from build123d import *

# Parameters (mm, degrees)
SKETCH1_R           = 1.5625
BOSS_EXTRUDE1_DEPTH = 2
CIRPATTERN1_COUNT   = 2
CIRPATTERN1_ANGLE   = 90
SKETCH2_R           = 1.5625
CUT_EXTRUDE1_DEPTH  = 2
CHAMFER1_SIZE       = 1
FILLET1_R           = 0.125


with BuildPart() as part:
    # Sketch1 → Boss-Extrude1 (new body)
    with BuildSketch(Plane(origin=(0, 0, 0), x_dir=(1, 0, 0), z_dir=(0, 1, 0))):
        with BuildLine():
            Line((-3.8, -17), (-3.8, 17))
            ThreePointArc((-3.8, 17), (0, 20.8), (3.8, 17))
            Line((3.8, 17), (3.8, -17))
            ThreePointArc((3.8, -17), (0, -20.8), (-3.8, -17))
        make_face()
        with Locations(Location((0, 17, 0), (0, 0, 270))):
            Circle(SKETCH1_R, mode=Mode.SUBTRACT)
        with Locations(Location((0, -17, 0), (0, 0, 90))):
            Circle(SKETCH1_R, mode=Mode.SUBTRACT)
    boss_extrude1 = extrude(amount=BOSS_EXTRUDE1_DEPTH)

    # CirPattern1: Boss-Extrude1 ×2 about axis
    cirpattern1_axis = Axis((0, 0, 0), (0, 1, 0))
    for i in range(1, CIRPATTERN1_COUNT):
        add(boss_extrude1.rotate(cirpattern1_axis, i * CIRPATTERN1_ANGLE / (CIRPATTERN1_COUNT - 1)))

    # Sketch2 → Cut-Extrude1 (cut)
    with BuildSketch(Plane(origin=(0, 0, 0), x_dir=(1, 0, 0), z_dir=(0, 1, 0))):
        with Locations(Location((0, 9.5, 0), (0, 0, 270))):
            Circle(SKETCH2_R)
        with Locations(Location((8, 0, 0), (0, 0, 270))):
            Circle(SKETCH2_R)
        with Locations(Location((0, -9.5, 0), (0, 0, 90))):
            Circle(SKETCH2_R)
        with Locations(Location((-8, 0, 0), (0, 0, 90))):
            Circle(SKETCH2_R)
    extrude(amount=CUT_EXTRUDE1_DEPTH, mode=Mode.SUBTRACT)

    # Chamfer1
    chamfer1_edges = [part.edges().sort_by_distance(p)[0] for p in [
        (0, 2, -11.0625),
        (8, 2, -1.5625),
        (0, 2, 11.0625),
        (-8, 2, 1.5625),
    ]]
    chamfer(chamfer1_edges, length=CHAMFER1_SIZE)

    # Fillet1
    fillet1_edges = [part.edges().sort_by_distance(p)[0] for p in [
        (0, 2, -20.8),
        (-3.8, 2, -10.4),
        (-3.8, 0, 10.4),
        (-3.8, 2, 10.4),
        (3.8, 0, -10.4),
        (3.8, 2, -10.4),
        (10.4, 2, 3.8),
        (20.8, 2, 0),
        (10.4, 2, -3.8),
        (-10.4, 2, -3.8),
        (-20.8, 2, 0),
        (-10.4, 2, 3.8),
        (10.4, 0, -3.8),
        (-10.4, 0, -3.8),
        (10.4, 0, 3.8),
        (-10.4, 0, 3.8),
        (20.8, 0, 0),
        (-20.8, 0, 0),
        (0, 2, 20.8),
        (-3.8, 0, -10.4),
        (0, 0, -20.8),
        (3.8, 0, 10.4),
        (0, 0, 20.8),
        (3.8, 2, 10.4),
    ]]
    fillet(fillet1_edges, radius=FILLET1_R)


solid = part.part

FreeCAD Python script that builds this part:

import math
import FreeCAD as App
import Part
import Sketcher
from FreeCAD import Vector
Q = App.Units.Quantity


def edges_at(feature, points):
    """Names of the edges that pass closest to the given points."""
    edges = feature.Shape.Edges
    near = lambda p: min(range(len(edges)), key=lambda i: edges[i].distToShape(Part.Vertex(*p))[0])
    return sorted({f"Edge{near(p) + 1}" for p in points})

doc = App.newDocument("Part")
body = doc.addObject("PartDesign::Body", "Body")

sketch1 = doc.addObject("Sketcher::SketchObject", "Sketch")
body.addObject(sketch1)
sketch1.AttachmentSupport = (doc.XZ_Plane, [""])
sketch1.MapMode = "FlatFace"
sketch1.addGeometry([
    Part.LineSegment(Vector(-3.8, -17, 0), Vector(-3.8, 17, 0)),
    Part.ArcOfCircle(Part.Circle(Vector(0, 17, 0), Vector(0, 0, 1), 3.8), math.radians(0), math.radians(180)),
    Part.LineSegment(Vector(3.8, 17, 0), Vector(3.8, -17, 0)),
    Part.ArcOfCircle(Part.Circle(Vector(0, -17, 0), Vector(0, 0, 1), 3.8), math.radians(180), math.radians(360)),
    Part.Circle(Vector(0, 17, 0), Vector(0, 0, 1), 1.6),
    Part.Circle(Vector(0, -17, 0), Vector(0, 0, 1), 1.6),
], False)
sketch1.addConstraint([
    Sketcher.Constraint("Tangent", 0, 2, 1, 2),
    Sketcher.Constraint("Tangent", 1, 1, 2, 1),
    Sketcher.Constraint("Tangent", 2, 2, 3, 2),
    Sketcher.Constraint("Tangent", 3, 1, 0, 1),
    Sketcher.Constraint("Vertical", 0),
    Sketcher.Constraint("Vertical", 2),
    Sketcher.Constraint("Coincident", 4, 3, 1, 3),
    Sketcher.Constraint("Coincident", 5, 3, 3, 3),
    Sketcher.Constraint("Equal", 4, 5),
    Sketcher.Constraint("Symmetric", 1, 3, 3, 3, -1, 1),
    Sketcher.Constraint("Radius", 1, Q("3.8 mm")),
    Sketcher.Constraint("DistanceY", 0, 1, 0, 2, Q("34 mm")),
    Sketcher.Constraint("Diameter", 4, Q("3.125 mm")),
])
pad1 = doc.addObject("PartDesign::Pad", "Pad")
body.addObject(pad1)
pad1.Profile = sketch1
pad1.Length = 2
pad1.Reversed = True
doc.recompute()

polarpattern = doc.addObject("PartDesign::PolarPattern", "PolarPattern")
body.addObject(polarpattern)
polarpattern.Originals = [pad1]
polarpattern.Axis = (doc.Y_Axis, [""])
polarpattern.Angle = 90
polarpattern.Occurrences = 2
body.Tip = polarpattern

sketch2 = doc.addObject("Sketcher::SketchObject", "Sketch001")
body.addObject(sketch2)
sketch2.AttachmentSupport = (doc.XZ_Plane, [""])
sketch2.MapMode = "FlatFace"
sketch2.addGeometry([
    Part.Circle(Vector(0, -9.5, 0), Vector(0, 0, 1), 1.6),
    Part.Circle(Vector(8, 0, 0), Vector(0, 0, 1), 1.6),
    Part.Circle(Vector(0, 9.5, 0), Vector(0, 0, 1), 1.6),
    Part.Circle(Vector(-8, 0, 0), Vector(0, 0, 1), 1.6),
], False)
sketch2.addConstraint([
    Sketcher.Constraint("Equal", 0, 1),
    Sketcher.Constraint("Equal", 1, 2),
    Sketcher.Constraint("Equal", 2, 3),
    Sketcher.Constraint("Symmetric", 0, 3, 2, 3, -1, 1),
    Sketcher.Constraint("Symmetric", 1, 3, 3, 3, -1, 1),
    Sketcher.Constraint("PointOnObject", 0, 3, -2),
    Sketcher.Constraint("PointOnObject", 1, 3, -1),
    Sketcher.Constraint("Diameter", 0, Q("3.125 mm")),
    Sketcher.Constraint("DistanceX", -1, 1, 1, 3, Q("8 mm")),
    Sketcher.Constraint("DistanceY", 0, 3, 2, 3, Q("19 mm")),
])
pocket1 = doc.addObject("PartDesign::Pocket", "Pocket")
body.addObject(pocket1)
pocket1.Profile = sketch2
pocket1.Length = 2
doc.recompute()

chamfer = doc.addObject("PartDesign::Chamfer", "Chamfer")
body.addObject(chamfer)
chamfer.Base = (pocket1, edges_at(pocket1, [
    (0, 2, -11.062),
    (8, 2, -1.562),
    (0, 2, 11.062),
    (-8, 2, 1.562),
]))
chamfer.Size = 1
doc.recompute()

fillet = doc.addObject("PartDesign::Fillet", "Fillet")
body.addObject(fillet)
fillet.Base = (chamfer, edges_at(chamfer, [
    (0, 2, -20.8),
    (-3.8, 2, -10.4),
    (-3.8, 0, 10.4),
    (-3.8, 2, 10.4),
    (3.8, 0, -10.4),
    (3.8, 2, -10.4),
    (10.4, 2, 3.8),
    (20.8, 2, 0),
    (10.4, 2, -3.8),
    (-10.4, 2, -3.8),
    (-20.8, 2, 0),
    (-10.4, 2, 3.8),
    (10.4, 0, -3.8),
    (-10.4, 0, -3.8),
    (10.4, 0, 3.8),
    (-10.4, 0, 3.8),
    (20.8, 0, 0),
    (-20.8, 0, 0),
    (0, 2, 20.8),
    (-3.8, 0, -10.4),
    (0, 0, -20.8),
    (3.8, 0, 10.4),
    (0, 0, 20.8),
    (3.8, 2, 10.4),
]))
fillet.Radius = 0.125

doc.recompute()
